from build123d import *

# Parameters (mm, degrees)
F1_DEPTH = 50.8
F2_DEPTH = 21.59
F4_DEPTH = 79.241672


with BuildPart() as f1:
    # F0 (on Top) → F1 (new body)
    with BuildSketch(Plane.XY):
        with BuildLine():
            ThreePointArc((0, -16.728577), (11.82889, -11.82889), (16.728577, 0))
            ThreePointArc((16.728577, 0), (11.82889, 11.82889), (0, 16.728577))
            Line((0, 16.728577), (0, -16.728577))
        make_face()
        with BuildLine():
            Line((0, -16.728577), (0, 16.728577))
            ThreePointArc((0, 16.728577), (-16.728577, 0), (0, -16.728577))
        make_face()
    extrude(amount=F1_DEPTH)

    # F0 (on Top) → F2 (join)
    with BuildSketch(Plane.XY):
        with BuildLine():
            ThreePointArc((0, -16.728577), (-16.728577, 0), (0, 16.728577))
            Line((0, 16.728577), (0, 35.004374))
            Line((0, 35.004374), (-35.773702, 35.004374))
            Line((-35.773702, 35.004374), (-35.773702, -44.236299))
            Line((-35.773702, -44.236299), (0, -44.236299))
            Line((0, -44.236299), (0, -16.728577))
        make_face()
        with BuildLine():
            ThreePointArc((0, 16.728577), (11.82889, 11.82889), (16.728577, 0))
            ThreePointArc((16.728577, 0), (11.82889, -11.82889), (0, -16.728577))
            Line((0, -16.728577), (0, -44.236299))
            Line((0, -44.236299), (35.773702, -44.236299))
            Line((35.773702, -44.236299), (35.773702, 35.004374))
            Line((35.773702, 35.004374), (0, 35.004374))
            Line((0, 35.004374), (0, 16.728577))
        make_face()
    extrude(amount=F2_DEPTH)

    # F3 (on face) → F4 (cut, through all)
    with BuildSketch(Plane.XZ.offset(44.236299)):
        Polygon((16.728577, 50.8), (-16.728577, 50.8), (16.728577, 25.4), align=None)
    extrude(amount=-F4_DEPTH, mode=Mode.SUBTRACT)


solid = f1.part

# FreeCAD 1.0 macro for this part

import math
import FreeCAD as App
import Part
import Sketcher
Q = App.Units.Quantity


def add_polygon(sketch, points):
    """Adds a closed chain of lines whose ends are joined by coincident constraints."""
    first, n = sketch.GeometryCount, len(points)
    for a, b in zip(points, points[1:] + points[:1]):
        sketch.addGeometry(Part.LineSegment(App.Vector(*a, 0), App.Vector(*b, 0)), False)
    for i in range(n):
        sketch.addConstraint(Sketcher.Constraint("Coincident", first + i, 2, first + (i + 1) % n, 1))

doc = App.newDocument("Part")
params = doc.addObject("Spreadsheet::Sheet", "Params")
for row, (alias, value) in enumerate([
    ("pad1_length", "2 in"),
    ("pad2_length", "0.85 in"),
    ("sketch3_height", "1 in"),
], start=1):
    params.set(f"A{row}", alias)
    params.set(f"B{row}", "=" + value)
    params.setAlias(f"B{row}", alias)

body = doc.addObject("PartDesign::Body", "Body")

sketch1 = body.newObject("Sketcher::SketchObject", "Sketch")
sketch1.AttachmentSupport = (doc.getObject("XY_Plane"), [""])
sketch1.MapMode = "FlatFace"
sketch1.addGeometry([
    Part.ArcOfCircle(Part.Circle(App.Vector(0, 0, 0), App.Vector(0, 0, 1), 17), math.radians(-90), math.radians(0)),
    Part.ArcOfCircle(Part.Circle(App.Vector(0, 0, 0), App.Vector(0, 0, 1), 17), math.radians(0), math.radians(90)),
    Part.ArcOfCircle(Part.Circle(App.Vector(0, 0, 0), App.Vector(0, 0, 1), 17), math.radians(90), math.radians(270)),
], False)
sketch1.addConstraint([
    Sketcher.Constraint("Tangent", 0, 2, 1, 1),
    Sketcher.Constraint("Tangent", 1, 2, 2, 1),
    Sketcher.Constraint("Tangent", 2, 2, 0, 1),
    Sketcher.Constraint("Coincident", 0, 3, -1, 1),
    Sketcher.Constraint("PointOnObject", 0, 2, -1),
    Sketcher.Constraint("PointOnObject", 1, 2, -2),
    Sketcher.Constraint("PointOnObject", 2, 2, -2),
    Sketcher.Constraint("Radius", 0, Q("16.728578 mm")),
])
pad1 = body.newObject("PartDesign::Pad", "Pad")
pad1.Profile = sketch1
pad1.setExpression("Length", "Params.pad1_length")

sketch2 = body.newObject("Sketcher::SketchObject", "Sketch001")
sketch2.AttachmentSupport = (doc.getObject("XY_Plane"), [""])
sketch2.MapMode = "FlatFace"
add_polygon(sketch2, [(-36, 35), (-36, -44), (36, -44), (36, 35)])
sketch2.addGeometry(Part.ArcOfCircle(Part.Circle(App.Vector(0, 0, 0), App.Vector(0, 0, 1), 17), math.radians(90), math.radians(270)), False)
sketch2.addGeometry(Part.ArcOfCircle(Part.Circle(App.Vector(0, 0, 0), App.Vector(0, 0, 1), 17), math.radians(0), math.radians(90)), False)
sketch2.addGeometry(Part.ArcOfCircle(Part.Circle(App.Vector(0, 0, 0), App.Vector(0, 0, 1), 17), math.radians(-90), math.radians(0)), False)
sketch2.addConstraint([
    Sketcher.Constraint("Tangent", 4, 1, 5, 2),
    Sketcher.Constraint("Tangent", 5, 1, 6, 2),
    Sketcher.Constraint("Tangent", 6, 1, 4, 2),
    Sketcher.Constraint("Vertical", 0),
    Sketcher.Constraint("Horizontal", 1),
    Sketcher.Constraint("Vertical", 2),
    Sketcher.Constraint("Horizontal", 3),
    Sketcher.Constraint("Coincident", 4, 3, -1, 1),
    Sketcher.Constraint("PointOnObject", 4, 1, -2),
    Sketcher.Constraint("PointOnObject", 5, 1, -1),
    Sketcher.Constraint("PointOnObject", 6, 1, -2),
    Sketcher.Constraint("Radius", 4, Q("16.728577 mm")),
    Sketcher.Constraint("DistanceY", 0, 2, -1, 1, Q("44.236299 mm")),
    Sketcher.Constraint("DistanceX", 0, 2, 5, 3, Q("35.773701 mm")),
    Sketcher.Constraint("DistanceX", 1, 1, 1, 2, Q("71.547404 mm")),
    Sketcher.Constraint("DistanceY", 0, 2, 0, 1, Q("79.240673 mm")),
])
pad2 = body.newObject("PartDesign::Pad", "Pad001")
pad2.Profile = sketch2
pad2.setExpression("Length", "Params.pad2_length")

sketch3 = body.newObject("Sketcher::SketchObject", "Sketch002")
sketch3.AttachmentSupport = (doc.getObject("XZ_Plane"), [""])
sketch3.MapMode = "FlatFace"
sketch3.AttachmentOffset = App.Placement(App.Vector(0, 0, 44.236299), App.Rotation())
add_polygon(sketch3, [(17, 51), (-17, 51), (17, 25)])
sketch3.addConstraint([
    Sketcher.Constraint("Horizontal", 0),
    Sketcher.Constraint("Vertical", 2),
    Sketcher.Constraint("DistanceY", 2, 1, 2, 2, Q("1 in")),
    Sketcher.Constraint("DistanceY", -1, 1, 0, 2, Q("2 in")),
    Sketcher.Constraint("Distance", 1, Q("42.006442 mm")),
    Sketcher.Constraint("DistanceX", 0, 2, -1, 1, Q("16.728577 mm")),
])
sketch3.setExpression("Constraints[5]", "Params.sketch3_height")
pocket1 = body.newObject("PartDesign::Pocket", "Pocket")
pocket1.Profile = sketch3
pocket1.Type = "ThroughAll"

doc.recompute()
